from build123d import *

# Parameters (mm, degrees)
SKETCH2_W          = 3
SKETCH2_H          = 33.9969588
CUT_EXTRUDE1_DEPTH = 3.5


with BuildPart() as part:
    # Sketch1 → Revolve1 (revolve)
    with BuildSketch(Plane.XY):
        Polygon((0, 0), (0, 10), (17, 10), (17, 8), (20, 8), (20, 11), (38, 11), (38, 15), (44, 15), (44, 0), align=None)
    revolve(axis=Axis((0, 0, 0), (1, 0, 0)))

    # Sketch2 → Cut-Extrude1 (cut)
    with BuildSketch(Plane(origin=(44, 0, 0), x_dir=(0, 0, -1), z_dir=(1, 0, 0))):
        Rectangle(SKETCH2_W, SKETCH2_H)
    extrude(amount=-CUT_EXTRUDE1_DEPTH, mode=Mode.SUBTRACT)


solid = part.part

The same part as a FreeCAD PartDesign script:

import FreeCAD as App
import Part
import Sketcher


def add_polygon(sketch, points):
    """Adds a closed chain of lines whose ends are joined by coincident constraints."""
    first, n = sketch.GeometryCount, len(points)
    for a, b in zip(points, points[1:] + points[:1]):
        sketch.addGeometry(Part.LineSegment(App.Vector(*a, 0), App.Vector(*b, 0)), False)
    for i in range(n):
        sketch.addConstraint(Sketcher.Constraint("Coincident", first + i, 2, first + (i + 1) % n, 1))

doc = App.newDocument("Part")
body = doc.addObject("PartDesign::Body", "Body")

# Sketch on XY plane
sketch1 = body.newObject("Sketcher::SketchObject", "Sketch")
sketch1.AttachmentSupport = (doc.getObject("XY_Plane"), [""])
sketch1.MapMode = "FlatFace"
add_polygon(sketch1, [(0, 10), (0, 0), (44, 0), (44, 15), (38, 15), (38, 11), (20, 11), (20, 8), (17, 8), (17, 10)])  # lines 0-9
sketch1.addConstraint([
    Sketcher.Constraint("Vertical", 0),
    Sketcher.Constraint("Horizontal", 1),
    Sketcher.Constraint("Vertical", 2),
    Sketcher.Constraint("Horizontal", 3),
    Sketcher.Constraint("Vertical", 4),
    Sketcher.Constraint("Horizontal", 5),
    Sketcher.Constraint("Vertical", 6),
    Sketcher.Constraint("Horizontal", 7),
    Sketcher.Constraint("Vertical", 8),
    Sketcher.Constraint("Horizontal", 9),
    Sketcher.Constraint("Coincident", 0, 2, -1, 1),
    Sketcher.Constraint("Equal", 7, 6),
    Sketcher.Constraint("DistanceX", 1, 1, 1, 2, 44.0),
    Sketcher.Constraint("DistanceX", 3, 2, 3, 1, 6.0),
    Sketcher.Constraint("DistanceX", 5, 2, 5, 1, 18.0),
    Sketcher.Constraint("DistanceX", 7, 2, 7, 1, 3.0),
    Sketcher.Constraint("DistanceY", 0, 2, 0, 1, 10.0),
    Sketcher.Constraint("DistanceY", 2, 1, 2, 2, 15.0),
    Sketcher.Constraint("DistanceY", 4, 2, 4, 1, 4.0),
])
revolution = body.newObject("PartDesign::Revolution", "Revolution")
revolution.Profile = sketch1
revolution.ReferenceAxis = (sketch1, ["H_Axis"])
revolution.Angle = 360

# Sketch on YZ plane
sketch2 = body.newObject("Sketcher::SketchObject", "Sketch001")
sketch2.AttachmentSupport = (doc.getObject("YZ_Plane"), [""])
sketch2.MapMode = "FlatFace"
sketch2.AttachmentOffset = App.Placement(App.Vector(0, 0, 44), App.Rotation())
add_polygon(sketch2, [(16.998479, 1.5), (-16.998479, 1.5), (-16.998479, -1.5), (16.998479, -1.5)])  # lines 0-3
sketch2.addConstraint([
    Sketcher.Constraint("Horizontal", 0),
    Sketcher.Constraint("Vertical", 1),
    Sketcher.Constraint("Horizontal", 2),
    Sketcher.Constraint("Vertical", 3),
    Sketcher.Constraint("Symmetric", 0, 2, 2, 2, -1, 1),
    Sketcher.Constraint("DistanceY", 1, 2, 1, 1, 3.0),
    Sketcher.Constraint("DistanceX", 0, 2, 0, 1, 33.996959),
])
pocket1 = body.newObject("PartDesign::Pocket", "Pocket")
pocket1.Profile = sketch2
pocket1.Length = 3.5

doc.recompute()
